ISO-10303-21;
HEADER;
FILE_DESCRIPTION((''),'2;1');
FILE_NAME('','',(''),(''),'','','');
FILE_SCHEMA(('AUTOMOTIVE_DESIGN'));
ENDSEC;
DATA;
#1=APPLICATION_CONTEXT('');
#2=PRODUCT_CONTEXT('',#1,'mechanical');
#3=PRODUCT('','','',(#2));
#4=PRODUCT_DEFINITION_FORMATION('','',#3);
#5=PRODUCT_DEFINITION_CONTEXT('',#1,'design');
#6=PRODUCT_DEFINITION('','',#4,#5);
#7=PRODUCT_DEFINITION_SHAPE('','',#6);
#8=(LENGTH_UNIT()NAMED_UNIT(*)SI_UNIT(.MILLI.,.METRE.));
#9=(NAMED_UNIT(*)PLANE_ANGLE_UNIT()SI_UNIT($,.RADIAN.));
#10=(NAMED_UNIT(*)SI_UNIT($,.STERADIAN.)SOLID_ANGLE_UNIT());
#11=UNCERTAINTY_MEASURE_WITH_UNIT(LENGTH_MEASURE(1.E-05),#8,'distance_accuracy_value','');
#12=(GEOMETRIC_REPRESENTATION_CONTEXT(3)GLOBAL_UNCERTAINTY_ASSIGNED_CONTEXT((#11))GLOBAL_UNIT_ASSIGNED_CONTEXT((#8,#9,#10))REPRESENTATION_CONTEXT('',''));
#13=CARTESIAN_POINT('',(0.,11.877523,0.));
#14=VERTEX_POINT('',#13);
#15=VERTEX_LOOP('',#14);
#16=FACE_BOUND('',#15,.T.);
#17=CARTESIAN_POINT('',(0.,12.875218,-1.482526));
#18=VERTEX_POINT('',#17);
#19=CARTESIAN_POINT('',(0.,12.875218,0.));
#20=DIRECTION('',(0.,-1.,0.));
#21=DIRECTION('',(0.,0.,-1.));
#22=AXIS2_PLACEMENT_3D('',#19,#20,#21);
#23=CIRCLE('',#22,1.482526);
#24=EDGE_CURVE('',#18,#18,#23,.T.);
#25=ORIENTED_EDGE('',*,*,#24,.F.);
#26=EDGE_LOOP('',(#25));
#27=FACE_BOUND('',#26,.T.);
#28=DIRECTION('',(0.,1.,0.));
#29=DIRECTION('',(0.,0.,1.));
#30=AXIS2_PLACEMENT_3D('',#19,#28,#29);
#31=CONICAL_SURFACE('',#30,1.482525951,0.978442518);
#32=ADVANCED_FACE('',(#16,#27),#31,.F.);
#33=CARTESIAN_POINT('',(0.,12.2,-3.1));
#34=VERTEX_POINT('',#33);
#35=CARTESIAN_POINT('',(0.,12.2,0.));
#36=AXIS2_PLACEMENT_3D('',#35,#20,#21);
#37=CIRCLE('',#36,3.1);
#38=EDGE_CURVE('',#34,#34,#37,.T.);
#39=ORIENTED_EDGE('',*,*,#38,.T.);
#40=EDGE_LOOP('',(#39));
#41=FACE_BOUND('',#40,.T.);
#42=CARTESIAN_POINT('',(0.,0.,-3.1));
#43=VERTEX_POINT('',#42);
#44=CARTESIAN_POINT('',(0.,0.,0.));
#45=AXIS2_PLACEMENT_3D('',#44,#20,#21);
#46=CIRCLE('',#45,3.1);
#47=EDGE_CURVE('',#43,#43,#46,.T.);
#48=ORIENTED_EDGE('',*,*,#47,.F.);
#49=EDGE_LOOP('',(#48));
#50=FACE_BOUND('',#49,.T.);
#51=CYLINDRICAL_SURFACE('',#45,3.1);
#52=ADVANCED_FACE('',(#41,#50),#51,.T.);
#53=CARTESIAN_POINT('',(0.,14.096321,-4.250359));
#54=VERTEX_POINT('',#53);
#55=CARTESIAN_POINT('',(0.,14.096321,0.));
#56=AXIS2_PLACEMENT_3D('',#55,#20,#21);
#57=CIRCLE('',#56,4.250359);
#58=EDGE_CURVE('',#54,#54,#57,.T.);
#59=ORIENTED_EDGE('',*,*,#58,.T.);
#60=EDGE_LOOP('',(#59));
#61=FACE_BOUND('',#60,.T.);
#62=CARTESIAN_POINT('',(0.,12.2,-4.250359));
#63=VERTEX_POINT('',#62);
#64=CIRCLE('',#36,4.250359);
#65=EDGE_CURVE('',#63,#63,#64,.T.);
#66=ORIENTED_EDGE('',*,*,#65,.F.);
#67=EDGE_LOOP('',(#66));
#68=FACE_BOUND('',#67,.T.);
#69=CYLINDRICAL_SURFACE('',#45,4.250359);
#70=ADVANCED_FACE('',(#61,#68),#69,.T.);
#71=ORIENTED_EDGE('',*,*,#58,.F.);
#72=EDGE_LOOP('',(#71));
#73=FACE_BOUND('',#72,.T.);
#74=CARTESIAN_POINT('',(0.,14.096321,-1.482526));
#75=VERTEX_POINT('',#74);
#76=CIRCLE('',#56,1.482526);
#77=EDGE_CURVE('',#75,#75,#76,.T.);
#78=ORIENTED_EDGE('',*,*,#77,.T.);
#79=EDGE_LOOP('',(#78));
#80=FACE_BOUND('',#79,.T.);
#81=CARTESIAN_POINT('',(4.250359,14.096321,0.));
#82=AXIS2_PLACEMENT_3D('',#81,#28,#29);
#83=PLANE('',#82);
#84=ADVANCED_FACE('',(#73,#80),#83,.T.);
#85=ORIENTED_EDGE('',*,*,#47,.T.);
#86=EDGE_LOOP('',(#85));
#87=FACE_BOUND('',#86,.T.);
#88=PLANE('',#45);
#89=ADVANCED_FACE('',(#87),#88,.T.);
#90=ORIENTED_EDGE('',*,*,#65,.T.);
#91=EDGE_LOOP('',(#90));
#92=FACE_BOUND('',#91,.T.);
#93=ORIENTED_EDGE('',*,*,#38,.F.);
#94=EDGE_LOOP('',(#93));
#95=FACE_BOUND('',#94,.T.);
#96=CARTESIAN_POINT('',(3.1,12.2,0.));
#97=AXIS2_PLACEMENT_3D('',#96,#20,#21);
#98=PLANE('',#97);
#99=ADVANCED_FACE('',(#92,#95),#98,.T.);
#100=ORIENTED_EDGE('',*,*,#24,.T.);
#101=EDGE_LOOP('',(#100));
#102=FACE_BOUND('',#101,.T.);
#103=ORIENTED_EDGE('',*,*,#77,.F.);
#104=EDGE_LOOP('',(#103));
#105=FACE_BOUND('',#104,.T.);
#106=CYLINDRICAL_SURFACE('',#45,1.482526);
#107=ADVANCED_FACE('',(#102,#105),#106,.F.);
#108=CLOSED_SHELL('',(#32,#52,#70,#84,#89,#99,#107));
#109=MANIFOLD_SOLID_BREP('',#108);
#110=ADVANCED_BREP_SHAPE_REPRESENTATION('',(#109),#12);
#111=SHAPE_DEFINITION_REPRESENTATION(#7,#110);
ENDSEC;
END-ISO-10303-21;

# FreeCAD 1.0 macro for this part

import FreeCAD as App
import Part
import Sketcher

V = App.Vector
Q = App.Units.Quantity

doc = App.newDocument("Part")
body = doc.addObject("PartDesign::Body", "Body")

# Sketch on XY plane
sketch1 = body.newObject("Sketcher::SketchObject", "Sketch")
sketch1.AttachmentSupport = (doc.getObject("XY_Plane"), [""])
sketch1.MapMode = "FlatFace"
sketch1.addGeometry([
    Part.LineSegment(V(0, 0, 0), V(3.1, 0, 0)),  # 0
    Part.LineSegment(V(3.1, 0, 0), V(3.1, 12.2, 0)),  # 1
    Part.LineSegment(V(3.1, 12.2, 0), V(4.3, 12.2, 0)),  # 2
    Part.LineSegment(V(4.3, 12.2, 0), V(4.3, 14.1, 0)),  # 3
    Part.LineSegment(V(4.3, 14.1, 0), V(1.5, 14.1, 0)),  # 4
    Part.LineSegment(V(1.5, 14.1, 0), V(1.5, 12.9, 0)),  # 5
    Part.LineSegment(V(1.5, 12.9, 0), V(0, 11.9, 0)),  # 6
    Part.LineSegment(V(0, 11.9, 0), V(0, 0, 0)),  # 7
], False)
sketch1.addConstraint([
    Sketcher.Constraint("Coincident", 0, 2, 1, 1),
    Sketcher.Constraint("Coincident", 1, 2, 2, 1),
    Sketcher.Constraint("Coincident", 2, 2, 3, 1),
    Sketcher.Constraint("Coincident", 3, 2, 4, 1),
    Sketcher.Constraint("Coincident", 4, 2, 5, 1),
    Sketcher.Constraint("Coincident", 5, 2, 6, 1),
    Sketcher.Constraint("Coincident", 6, 2, 7, 1),
    Sketcher.Constraint("Coincident", 7, 2, 0, 1),
    Sketcher.Constraint("Horizontal", 0),
    Sketcher.Constraint("Vertical", 1),
    Sketcher.Constraint("Horizontal", 2),
    Sketcher.Constraint("Vertical", 3),
    Sketcher.Constraint("Horizontal", 4),
    Sketcher.Constraint("Vertical", 5),
    Sketcher.Constraint("Vertical", 7),
    Sketcher.Constraint("Coincident", 7, 2, -1, 1),
    Sketcher.Constraint("DistanceX", 0, 1, 0, 2, Q("3.1 mm")),
    Sketcher.Constraint("DistanceY", 1, 1, 1, 2, Q("12.2 mm")),
    Sketcher.Constraint("DistanceX", 2, 1, 2, 2, Q("1.150359 mm")),
    Sketcher.Constraint("DistanceY", 3, 1, 3, 2, Q("1.896321 mm")),
    Sketcher.Constraint("DistanceY", 6, 2, 4, 2, Q("2.218798 mm")),
    Sketcher.Constraint("DistanceX", 4, 2, 4, 1, Q("2.767833 mm")),
    Sketcher.Constraint("DistanceY", 5, 2, 5, 1, Q("1.221103 mm")),
])
revolution = body.newObject("PartDesign::Revolution", "Revolution")
revolution.Profile = sketch1
revolution.ReferenceAxis = (sketch1, ["V_Axis"])
revolution.Angle = 360

doc.recompute()
